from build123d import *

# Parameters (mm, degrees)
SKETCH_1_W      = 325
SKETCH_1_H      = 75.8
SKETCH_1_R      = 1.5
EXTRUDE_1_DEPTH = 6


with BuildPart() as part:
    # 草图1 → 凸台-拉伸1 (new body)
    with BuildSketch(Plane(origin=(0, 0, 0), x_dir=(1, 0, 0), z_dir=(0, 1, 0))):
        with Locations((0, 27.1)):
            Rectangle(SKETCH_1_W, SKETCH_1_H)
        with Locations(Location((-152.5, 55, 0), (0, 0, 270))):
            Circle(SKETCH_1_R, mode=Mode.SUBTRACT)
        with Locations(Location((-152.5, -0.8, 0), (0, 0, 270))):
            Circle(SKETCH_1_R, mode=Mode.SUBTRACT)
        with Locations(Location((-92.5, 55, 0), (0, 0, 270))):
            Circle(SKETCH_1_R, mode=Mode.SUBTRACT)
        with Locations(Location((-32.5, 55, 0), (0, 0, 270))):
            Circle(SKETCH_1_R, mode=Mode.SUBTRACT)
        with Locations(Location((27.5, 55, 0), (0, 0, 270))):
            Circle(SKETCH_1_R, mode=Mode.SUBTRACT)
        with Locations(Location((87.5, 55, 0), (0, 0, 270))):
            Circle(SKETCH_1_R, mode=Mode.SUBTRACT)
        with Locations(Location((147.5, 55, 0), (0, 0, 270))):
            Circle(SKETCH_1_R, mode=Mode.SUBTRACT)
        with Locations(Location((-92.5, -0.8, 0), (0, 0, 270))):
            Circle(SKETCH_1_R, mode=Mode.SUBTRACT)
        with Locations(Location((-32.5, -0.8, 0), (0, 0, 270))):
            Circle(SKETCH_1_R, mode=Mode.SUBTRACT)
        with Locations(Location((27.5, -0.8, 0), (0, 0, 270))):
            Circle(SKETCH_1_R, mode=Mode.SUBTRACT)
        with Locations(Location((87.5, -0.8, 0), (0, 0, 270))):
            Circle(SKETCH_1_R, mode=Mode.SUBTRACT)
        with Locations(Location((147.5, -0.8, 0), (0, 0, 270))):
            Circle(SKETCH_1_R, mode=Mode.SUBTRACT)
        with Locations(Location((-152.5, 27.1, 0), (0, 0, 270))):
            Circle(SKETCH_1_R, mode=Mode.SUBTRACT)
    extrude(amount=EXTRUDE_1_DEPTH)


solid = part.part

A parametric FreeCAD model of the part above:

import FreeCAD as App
import Part
import Sketcher

V = App.Vector

doc = App.newDocument("Part")
params = doc.addObject("Spreadsheet::Sheet", "Params")
for row, (alias, value) in enumerate([
    ("sketch1_diameter", "3 mm"),
    ("sketch1_width", "325 mm"),
    ("sketch1_height", "75.8 mm"),
    ("pad1_length", "6 mm"),
], start=1):
    params.set(f"A{row}", alias)
    params.set(f"B{row}", "=" + value)
    params.setAlias(f"B{row}", alias)

body = doc.addObject("PartDesign::Body", "Body")

sketch1 = body.newObject("Sketcher::SketchObject", "Sketch")
sketch1.AttachmentSupport = (doc.getObject("XZ_Plane"), [""])
sketch1.MapMode = "FlatFace"
sketch1.addGeometry([
    Part.LineSegment(V(-162.5, -65, 0), V(-162.5, 10.8, 0)),
    Part.LineSegment(V(-162.5, 10.8, 0), V(162.5, 10.8, 0)),
    Part.LineSegment(V(162.5, 10.8, 0), V(162.5, -65, 0)),
    Part.LineSegment(V(162.5, -65, 0), V(-162.5, -65, 0)),
    Part.Circle(V(-152.5, 0.8, 0), V(0, 0, 1), 1.5),
    Part.Circle(V(-92.5, 0.8, 0), V(0, 0, 1), 1.5),
    Part.Circle(V(-32.5, 0.8, 0), V(0, 0, 1), 1.5),
    Part.Circle(V(27.5, 0.8, 0), V(0, 0, 1), 1.5),
    Part.Circle(V(87.5, 0.8, 0), V(0, 0, 1), 1.5),
    Part.Circle(V(147.5, 0.8, 0), V(0, 0, 1), 1.5),
    Part.Circle(V(-152.5, -27.1, 0), V(0, 0, 1), 1.5),
    Part.Circle(V(-152.5, -55, 0), V(0, 0, 1), 1.5),
    Part.Circle(V(-92.5, -55, 0), V(0, 0, 1), 1.5),
    Part.Circle(V(-32.5, -55, 0), V(0, 0, 1), 1.5),
    Part.Circle(V(27.5, -55, 0), V(0, 0, 1), 1.5),
    Part.Circle(V(87.5, -55, 0), V(0, 0, 1), 1.5),
    Part.Circle(V(147.5, -55, 0), V(0, 0, 1), 1.5),
], False)
sketch1.addConstraint([
    Sketcher.Constraint("Coincident", 0, 2, 1, 1),
    Sketcher.Constraint("Coincident", 1, 2, 2, 1),
    Sketcher.Constraint("Coincident", 2, 2, 3, 1),
    Sketcher.Constraint("Coincident", 3, 2, 0, 1),
    Sketcher.Constraint("Vertical", 0),
    Sketcher.Constraint("Horizontal", 1),
    Sketcher.Constraint("Vertical", 2),
    Sketcher.Constraint("Horizontal", 3),
    Sketcher.Constraint("Equal", 4, 5),
    Sketcher.Constraint("Equal", 5, 6),
    Sketcher.Constraint("Equal", 6, 7),
    Sketcher.Constraint("Equal", 7, 8),
    Sketcher.Constraint("Equal", 8, 9),
    Sketcher.Constraint("Equal", 9, 10),
    Sketcher.Constraint("Equal", 10, 11),
    Sketcher.Constraint("Equal", 11, 12),
    Sketcher.Constraint("Equal", 12, 13),
    Sketcher.Constraint("Equal", 13, 14),
    Sketcher.Constraint("Equal", 14, 15),
    Sketcher.Constraint("Equal", 15, 16),
    Sketcher.Constraint("Horizontal", 4, 3, 5, 3),
    Sketcher.Constraint("Horizontal", 5, 3, 6, 3),
    Sketcher.Constraint("Horizontal", 6, 3, 7, 3),
    Sketcher.Constraint("Horizontal", 7, 3, 8, 3),
    Sketcher.Constraint("Horizontal", 8, 3, 9, 3),
    Sketcher.Constraint("Horizontal", 11, 3, 12, 3),
    Sketcher.Constraint("Horizontal", 12, 3, 13, 3),
    Sketcher.Constraint("Horizontal", 13, 3, 14, 3),
    Sketcher.Constraint("Horizontal", 14, 3, 15, 3),
    Sketcher.Constraint("Horizontal", 15, 3, 16, 3),
    Sketcher.Constraint("Vertical", 4, 3, 10, 3),
    Sketcher.Constraint("Vertical", 10, 3, 11, 3),
    Sketcher.Constraint("Vertical", 5, 3, 12, 3),
    Sketcher.Constraint("Vertical", 6, 3, 13, 3),
    Sketcher.Constraint("Vertical", 7, 3, 14, 3),
    Sketcher.Constraint("Vertical", 8, 3, 15, 3),
    Sketcher.Constraint("Vertical", 9, 3, 16, 3),
    Sketcher.Constraint("Diameter", 4, 3.0),
    Sketcher.Constraint("DistanceX", 1, 1, 1, 2, 325.0),
    Sketcher.Constraint("DistanceY", 0, 1, 0, 2, 75.8),
    Sketcher.Constraint("DistanceY", 11, 3, -1, 1, 55.0),
    Sketcher.Constraint("DistanceY", 2, 2, -1, 1, 65.0),
    Sketcher.Constraint("DistanceX", 4, 3, 5, 3, 60.0),
    Sketcher.Constraint("DistanceX", 5, 3, 6, 3, 60.0),
    Sketcher.Constraint("DistanceX", 6, 3, 7, 3, 60.0),
    Sketcher.Constraint("DistanceX", 7, 3, 8, 3, 60.0),
    Sketcher.Constraint("DistanceX", 8, 3, 9, 3, 60.0),
    Sketcher.Constraint("DistanceX", 0, 2, 4, 3, 10.0),
    Sketcher.Constraint("DistanceY", 4, 3, 0, 2, 10.0),
    Sketcher.Constraint("DistanceX", 4, 3, -1, 1, 152.5),
    Sketcher.Constraint("DistanceY", 10, 3, -1, 1, 27.1),
])
sketch1.setExpression("Constraints[37]", "Params.sketch1_diameter")
sketch1.setExpression("Constraints[38]", "Params.sketch1_width")
sketch1.setExpression("Constraints[39]", "Params.sketch1_height")
pad1 = body.newObject("PartDesign::Pad", "Pad")
pad1.Profile = sketch1
pad1.setExpression("Length", "Params.pad1_length")
pad1.Reversed = True

doc.recompute()
